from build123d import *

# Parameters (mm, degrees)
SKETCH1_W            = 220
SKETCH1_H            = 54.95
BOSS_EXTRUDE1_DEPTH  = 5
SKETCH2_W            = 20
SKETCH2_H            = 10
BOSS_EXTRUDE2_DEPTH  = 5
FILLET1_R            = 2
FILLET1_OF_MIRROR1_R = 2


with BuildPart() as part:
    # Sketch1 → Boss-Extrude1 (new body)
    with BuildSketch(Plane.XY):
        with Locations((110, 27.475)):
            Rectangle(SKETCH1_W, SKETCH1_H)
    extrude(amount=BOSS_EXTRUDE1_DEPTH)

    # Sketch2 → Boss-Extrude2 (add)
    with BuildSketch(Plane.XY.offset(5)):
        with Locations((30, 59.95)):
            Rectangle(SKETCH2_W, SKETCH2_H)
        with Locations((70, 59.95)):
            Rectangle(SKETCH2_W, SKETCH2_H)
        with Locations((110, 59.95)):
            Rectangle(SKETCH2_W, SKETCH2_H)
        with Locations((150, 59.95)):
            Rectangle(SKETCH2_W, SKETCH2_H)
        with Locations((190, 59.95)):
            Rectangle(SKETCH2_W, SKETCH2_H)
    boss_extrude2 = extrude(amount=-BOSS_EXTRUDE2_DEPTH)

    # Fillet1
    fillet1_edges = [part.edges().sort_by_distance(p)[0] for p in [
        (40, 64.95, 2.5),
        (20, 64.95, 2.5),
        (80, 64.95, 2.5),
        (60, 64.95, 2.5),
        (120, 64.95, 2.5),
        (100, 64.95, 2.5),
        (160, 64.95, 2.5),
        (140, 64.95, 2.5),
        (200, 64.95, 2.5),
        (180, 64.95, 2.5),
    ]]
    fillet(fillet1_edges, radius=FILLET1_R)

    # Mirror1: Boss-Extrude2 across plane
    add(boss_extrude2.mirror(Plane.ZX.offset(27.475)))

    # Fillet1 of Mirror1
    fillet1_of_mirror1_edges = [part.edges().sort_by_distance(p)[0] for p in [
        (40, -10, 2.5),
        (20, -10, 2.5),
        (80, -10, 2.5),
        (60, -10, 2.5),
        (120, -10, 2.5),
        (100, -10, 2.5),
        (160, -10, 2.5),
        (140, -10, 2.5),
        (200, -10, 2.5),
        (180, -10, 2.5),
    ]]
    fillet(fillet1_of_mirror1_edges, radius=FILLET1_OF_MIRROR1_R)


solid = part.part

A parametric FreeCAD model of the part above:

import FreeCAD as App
import Part
import Sketcher
Q = App.Units.Quantity


def edges_at(feature, points):
    """Names of the edges that pass closest to the given points."""
    edges = feature.Shape.Edges
    near = lambda p: min(range(len(edges)), key=lambda i: edges[i].distToShape(Part.Vertex(*p))[0])
    return sorted({f"Edge{near(p) + 1}" for p in points})

doc = App.newDocument("Part")
body = doc.addObject("PartDesign::Body", "Body")

sketch1 = body.newObject("Sketcher::SketchObject", "Sketch")
sketch1.AttachmentSupport = (doc.getObject("XY_Plane"), [""])
sketch1.MapMode = "FlatFace"
sketch1.addGeometry([
    Part.LineSegment(App.Vector(0, 54.95, 0), App.Vector(0, 0, 0)),
    Part.LineSegment(App.Vector(0, 0, 0), App.Vector(220, 0, 0)),
    Part.LineSegment(App.Vector(220, 0, 0), App.Vector(220, 54.95, 0)),
    Part.LineSegment(App.Vector(220, 54.95, 0), App.Vector(0, 54.95, 0)),
], False)
sketch1.addConstraint([
    Sketcher.Constraint("Coincident", 0, 2, 1, 1),
    Sketcher.Constraint("Coincident", 1, 2, 2, 1),
    Sketcher.Constraint("Coincident", 2, 2, 3, 1),
    Sketcher.Constraint("Coincident", 3, 2, 0, 1),
    Sketcher.Constraint("Vertical", 0),
    Sketcher.Constraint("Horizontal", 1),
    Sketcher.Constraint("Vertical", 2),
    Sketcher.Constraint("Horizontal", 3),
    Sketcher.Constraint("Coincident", 0, 2, -1, 1),
    Sketcher.Constraint("DistanceX", 1, 1, 1, 2, Q("220 mm")),
    Sketcher.Constraint("DistanceY", 0, 2, 0, 1, Q("54.95 mm")),
])
pad1 = body.newObject("PartDesign::Pad", "Pad")
pad1.Profile = sketch1
pad1.Length = 5

sketch2 = body.newObject("Sketcher::SketchObject", "Sketch001")
sketch2.AttachmentSupport = (doc.getObject("XY_Plane"), [""])
sketch2.MapMode = "FlatFace"
sketch2.AttachmentOffset = App.Placement(App.Vector(0, 0, 5), App.Rotation())
sketch2.addGeometry([
    Part.LineSegment(App.Vector(20, 64.95, 0), App.Vector(20, 54.95, 0)),
    Part.LineSegment(App.Vector(20, 54.95, 0), App.Vector(40, 54.95, 0)),
    Part.LineSegment(App.Vector(40, 54.95, 0), App.Vector(40, 64.95, 0)),
    Part.LineSegment(App.Vector(40, 64.95, 0), App.Vector(20, 64.95, 0)),
    Part.LineSegment(App.Vector(60, 64.95, 0), App.Vector(60, 54.95, 0)),
    Part.LineSegment(App.Vector(60, 54.95, 0), App.Vector(80, 54.95, 0)),
    Part.LineSegment(App.Vector(80, 54.95, 0), App.Vector(80, 64.95, 0)),
    Part.LineSegment(App.Vector(80, 64.95, 0), App.Vector(60, 64.95, 0)),
    Part.LineSegment(App.Vector(100, 64.95, 0), App.Vector(100, 54.95, 0)),
    Part.LineSegment(App.Vector(100, 54.95, 0), App.Vector(120, 54.95, 0)),
    Part.LineSegment(App.Vector(120, 54.95, 0), App.Vector(120, 64.95, 0)),
    Part.LineSegment(App.Vector(120, 64.95, 0), App.Vector(100, 64.95, 0)),
    Part.LineSegment(App.Vector(140, 64.95, 0), App.Vector(140, 54.95, 0)),
    Part.LineSegment(App.Vector(140, 54.95, 0), App.Vector(160, 54.95, 0)),
    Part.LineSegment(App.Vector(160, 54.95, 0), App.Vector(160, 64.95, 0)),
    Part.LineSegment(App.Vector(160, 64.95, 0), App.Vector(140, 64.95, 0)),
    Part.LineSegment(App.Vector(180, 64.95, 0), App.Vector(180, 54.95, 0)),
    Part.LineSegment(App.Vector(180, 54.95, 0), App.Vector(200, 54.95, 0)),
    Part.LineSegment(App.Vector(200, 54.95, 0), App.Vector(200, 64.95, 0)),
    Part.LineSegment(App.Vector(200, 64.95, 0), App.Vector(180, 64.95, 0)),
], False)
sketch2.addConstraint([
    Sketcher.Constraint("Coincident", 0, 2, 1, 1),
    Sketcher.Constraint("Coincident", 1, 2, 2, 1),
    Sketcher.Constraint("Coincident", 2, 2, 3, 1),
    Sketcher.Constraint("Coincident", 3, 2, 0, 1),
    Sketcher.Constraint("Coincident", 4, 2, 5, 1),
    Sketcher.Constraint("Coincident", 5, 2, 6, 1),
    Sketcher.Constraint("Coincident", 6, 2, 7, 1),
    Sketcher.Constraint("Coincident", 7, 2, 4, 1),
    Sketcher.Constraint("Coincident", 8, 2, 9, 1),
    Sketcher.Constraint("Coincident", 9, 2, 10, 1),
    Sketcher.Constraint("Coincident", 10, 2, 11, 1),
    Sketcher.Constraint("Coincident", 11, 2, 8, 1),
    Sketcher.Constraint("Coincident", 12, 2, 13, 1),
    Sketcher.Constraint("Coincident", 13, 2, 14, 1),
    Sketcher.Constraint("Coincident", 14, 2, 15, 1),
    Sketcher.Constraint("Coincident", 15, 2, 12, 1),
    Sketcher.Constraint("Coincident", 16, 2, 17, 1),
    Sketcher.Constraint("Coincident", 17, 2, 18, 1),
    Sketcher.Constraint("Coincident", 18, 2, 19, 1),
    Sketcher.Constraint("Coincident", 19, 2, 16, 1),
    Sketcher.Constraint("Vertical", 0),
    Sketcher.Constraint("Horizontal", 1),
    Sketcher.Constraint("Vertical", 2),
    Sketcher.Constraint("Horizontal", 3),
    Sketcher.Constraint("Vertical", 4),
    Sketcher.Constraint("Horizontal", 5),
    Sketcher.Constraint("Vertical", 6),
    Sketcher.Constraint("Horizontal", 7),
    Sketcher.Constraint("Vertical", 8),
    Sketcher.Constraint("Horizontal", 9),
    Sketcher.Constraint("Vertical", 10),
    Sketcher.Constraint("Horizontal", 11),
    Sketcher.Constraint("Vertical", 12),
    Sketcher.Constraint("Horizontal", 13),
    Sketcher.Constraint("Vertical", 14),
    Sketcher.Constraint("Horizontal", 15),
    Sketcher.Constraint("Vertical", 16),
    Sketcher.Constraint("Horizontal", 17),
    Sketcher.Constraint("Vertical", 18),
    Sketcher.Constraint("Horizontal", 19),
    Sketcher.Constraint("Horizontal", 1, 2, 4, 2),
    Sketcher.Constraint("Horizontal", 3, 2, 6, 2),
    Sketcher.Constraint("Horizontal", 5, 2, 8, 2),
    Sketcher.Constraint("Horizontal", 7, 2, 10, 2),
    Sketcher.Constraint("Horizontal", 9, 2, 12, 2),
    Sketcher.Constraint("Horizontal", 11, 2, 14, 2),
    Sketcher.Constraint("Horizontal", 13, 2, 16, 2),
    Sketcher.Constraint("Horizontal", 15, 2, 18, 2),
    Sketcher.Constraint("Equal", 3, 5),
    Sketcher.Constraint("Equal", 7, 9),
    Sketcher.Constraint("Equal", 11, 13),
    Sketcher.Constraint("Equal", 15, 17),
    Sketcher.Constraint("DistanceX", 1, 1, 1, 2, Q("20 mm")),
    Sketcher.Constraint("DistanceY", 0, 2, 0, 1, Q("10 mm")),
    Sketcher.Constraint("DistanceX", -1, 1, 0, 2, Q("20 mm")),
    Sketcher.Constraint("DistanceX", -1, 1, 4, 2, Q("60 mm")),
    Sketcher.Constraint("DistanceX", -1, 1, 8, 2, Q("100 mm")),
    Sketcher.Constraint("DistanceX", -1, 1, 12, 2, Q("140 mm")),
    Sketcher.Constraint("DistanceX", -1, 1, 16, 2, Q("180 mm")),
    Sketcher.Constraint("DistanceY", -1, 1, 0, 2, Q("54.95 mm")),
])
pad2 = body.newObject("PartDesign::Pad", "Pad001")
pad2.Profile = sketch2
pad2.Length = 5
pad2.Reversed = True
doc.recompute()

fillet = body.newObject("PartDesign::Fillet", "Fillet")
fillet.Base = (pad2, edges_at(pad2, [
    (40, 64.95, 2.5),
    (20, 64.95, 2.5),
    (80, 64.95, 2.5),
    (60, 64.95, 2.5),
    (120, 64.95, 2.5),
    (100, 64.95, 2.5),
    (160, 64.95, 2.5),
    (140, 64.95, 2.5),
    (200, 64.95, 2.5),
    (180, 64.95, 2.5),
]))
fillet.Radius = 2
doc.recompute()

datumplane = body.newObject("PartDesign::Plane", "DatumPlane")
datumplane.AttachmentSupport = (doc.getObject("XZ_Plane"), [""])
datumplane.MapMode = "FlatFace"
datumplane.AttachmentOffset = App.Placement(App.Vector(0, 0, -27.475), App.Rotation())
mirrored = body.newObject("PartDesign::Mirrored", "Mirrored")
mirrored.Originals = [pad2]
mirrored.MirrorPlane = (datumplane, [""])
body.Tip = mirrored
doc.recompute()

fillet2 = body.newObject("PartDesign::Fillet", "Fillet001")
fillet2.Base = (mirrored, edges_at(mirrored, [
    (40, -10, 2.5),
    (20, -10, 2.5),
    (80, -10, 2.5),
    (60, -10, 2.5),
    (120, -10, 2.5),
    (100, -10, 2.5),
    (160, -10, 2.5),
    (140, -10, 2.5),
    (200, -10, 2.5),
    (180, -10, 2.5),
]))
fillet2.Radius = 2

doc.recompute()
